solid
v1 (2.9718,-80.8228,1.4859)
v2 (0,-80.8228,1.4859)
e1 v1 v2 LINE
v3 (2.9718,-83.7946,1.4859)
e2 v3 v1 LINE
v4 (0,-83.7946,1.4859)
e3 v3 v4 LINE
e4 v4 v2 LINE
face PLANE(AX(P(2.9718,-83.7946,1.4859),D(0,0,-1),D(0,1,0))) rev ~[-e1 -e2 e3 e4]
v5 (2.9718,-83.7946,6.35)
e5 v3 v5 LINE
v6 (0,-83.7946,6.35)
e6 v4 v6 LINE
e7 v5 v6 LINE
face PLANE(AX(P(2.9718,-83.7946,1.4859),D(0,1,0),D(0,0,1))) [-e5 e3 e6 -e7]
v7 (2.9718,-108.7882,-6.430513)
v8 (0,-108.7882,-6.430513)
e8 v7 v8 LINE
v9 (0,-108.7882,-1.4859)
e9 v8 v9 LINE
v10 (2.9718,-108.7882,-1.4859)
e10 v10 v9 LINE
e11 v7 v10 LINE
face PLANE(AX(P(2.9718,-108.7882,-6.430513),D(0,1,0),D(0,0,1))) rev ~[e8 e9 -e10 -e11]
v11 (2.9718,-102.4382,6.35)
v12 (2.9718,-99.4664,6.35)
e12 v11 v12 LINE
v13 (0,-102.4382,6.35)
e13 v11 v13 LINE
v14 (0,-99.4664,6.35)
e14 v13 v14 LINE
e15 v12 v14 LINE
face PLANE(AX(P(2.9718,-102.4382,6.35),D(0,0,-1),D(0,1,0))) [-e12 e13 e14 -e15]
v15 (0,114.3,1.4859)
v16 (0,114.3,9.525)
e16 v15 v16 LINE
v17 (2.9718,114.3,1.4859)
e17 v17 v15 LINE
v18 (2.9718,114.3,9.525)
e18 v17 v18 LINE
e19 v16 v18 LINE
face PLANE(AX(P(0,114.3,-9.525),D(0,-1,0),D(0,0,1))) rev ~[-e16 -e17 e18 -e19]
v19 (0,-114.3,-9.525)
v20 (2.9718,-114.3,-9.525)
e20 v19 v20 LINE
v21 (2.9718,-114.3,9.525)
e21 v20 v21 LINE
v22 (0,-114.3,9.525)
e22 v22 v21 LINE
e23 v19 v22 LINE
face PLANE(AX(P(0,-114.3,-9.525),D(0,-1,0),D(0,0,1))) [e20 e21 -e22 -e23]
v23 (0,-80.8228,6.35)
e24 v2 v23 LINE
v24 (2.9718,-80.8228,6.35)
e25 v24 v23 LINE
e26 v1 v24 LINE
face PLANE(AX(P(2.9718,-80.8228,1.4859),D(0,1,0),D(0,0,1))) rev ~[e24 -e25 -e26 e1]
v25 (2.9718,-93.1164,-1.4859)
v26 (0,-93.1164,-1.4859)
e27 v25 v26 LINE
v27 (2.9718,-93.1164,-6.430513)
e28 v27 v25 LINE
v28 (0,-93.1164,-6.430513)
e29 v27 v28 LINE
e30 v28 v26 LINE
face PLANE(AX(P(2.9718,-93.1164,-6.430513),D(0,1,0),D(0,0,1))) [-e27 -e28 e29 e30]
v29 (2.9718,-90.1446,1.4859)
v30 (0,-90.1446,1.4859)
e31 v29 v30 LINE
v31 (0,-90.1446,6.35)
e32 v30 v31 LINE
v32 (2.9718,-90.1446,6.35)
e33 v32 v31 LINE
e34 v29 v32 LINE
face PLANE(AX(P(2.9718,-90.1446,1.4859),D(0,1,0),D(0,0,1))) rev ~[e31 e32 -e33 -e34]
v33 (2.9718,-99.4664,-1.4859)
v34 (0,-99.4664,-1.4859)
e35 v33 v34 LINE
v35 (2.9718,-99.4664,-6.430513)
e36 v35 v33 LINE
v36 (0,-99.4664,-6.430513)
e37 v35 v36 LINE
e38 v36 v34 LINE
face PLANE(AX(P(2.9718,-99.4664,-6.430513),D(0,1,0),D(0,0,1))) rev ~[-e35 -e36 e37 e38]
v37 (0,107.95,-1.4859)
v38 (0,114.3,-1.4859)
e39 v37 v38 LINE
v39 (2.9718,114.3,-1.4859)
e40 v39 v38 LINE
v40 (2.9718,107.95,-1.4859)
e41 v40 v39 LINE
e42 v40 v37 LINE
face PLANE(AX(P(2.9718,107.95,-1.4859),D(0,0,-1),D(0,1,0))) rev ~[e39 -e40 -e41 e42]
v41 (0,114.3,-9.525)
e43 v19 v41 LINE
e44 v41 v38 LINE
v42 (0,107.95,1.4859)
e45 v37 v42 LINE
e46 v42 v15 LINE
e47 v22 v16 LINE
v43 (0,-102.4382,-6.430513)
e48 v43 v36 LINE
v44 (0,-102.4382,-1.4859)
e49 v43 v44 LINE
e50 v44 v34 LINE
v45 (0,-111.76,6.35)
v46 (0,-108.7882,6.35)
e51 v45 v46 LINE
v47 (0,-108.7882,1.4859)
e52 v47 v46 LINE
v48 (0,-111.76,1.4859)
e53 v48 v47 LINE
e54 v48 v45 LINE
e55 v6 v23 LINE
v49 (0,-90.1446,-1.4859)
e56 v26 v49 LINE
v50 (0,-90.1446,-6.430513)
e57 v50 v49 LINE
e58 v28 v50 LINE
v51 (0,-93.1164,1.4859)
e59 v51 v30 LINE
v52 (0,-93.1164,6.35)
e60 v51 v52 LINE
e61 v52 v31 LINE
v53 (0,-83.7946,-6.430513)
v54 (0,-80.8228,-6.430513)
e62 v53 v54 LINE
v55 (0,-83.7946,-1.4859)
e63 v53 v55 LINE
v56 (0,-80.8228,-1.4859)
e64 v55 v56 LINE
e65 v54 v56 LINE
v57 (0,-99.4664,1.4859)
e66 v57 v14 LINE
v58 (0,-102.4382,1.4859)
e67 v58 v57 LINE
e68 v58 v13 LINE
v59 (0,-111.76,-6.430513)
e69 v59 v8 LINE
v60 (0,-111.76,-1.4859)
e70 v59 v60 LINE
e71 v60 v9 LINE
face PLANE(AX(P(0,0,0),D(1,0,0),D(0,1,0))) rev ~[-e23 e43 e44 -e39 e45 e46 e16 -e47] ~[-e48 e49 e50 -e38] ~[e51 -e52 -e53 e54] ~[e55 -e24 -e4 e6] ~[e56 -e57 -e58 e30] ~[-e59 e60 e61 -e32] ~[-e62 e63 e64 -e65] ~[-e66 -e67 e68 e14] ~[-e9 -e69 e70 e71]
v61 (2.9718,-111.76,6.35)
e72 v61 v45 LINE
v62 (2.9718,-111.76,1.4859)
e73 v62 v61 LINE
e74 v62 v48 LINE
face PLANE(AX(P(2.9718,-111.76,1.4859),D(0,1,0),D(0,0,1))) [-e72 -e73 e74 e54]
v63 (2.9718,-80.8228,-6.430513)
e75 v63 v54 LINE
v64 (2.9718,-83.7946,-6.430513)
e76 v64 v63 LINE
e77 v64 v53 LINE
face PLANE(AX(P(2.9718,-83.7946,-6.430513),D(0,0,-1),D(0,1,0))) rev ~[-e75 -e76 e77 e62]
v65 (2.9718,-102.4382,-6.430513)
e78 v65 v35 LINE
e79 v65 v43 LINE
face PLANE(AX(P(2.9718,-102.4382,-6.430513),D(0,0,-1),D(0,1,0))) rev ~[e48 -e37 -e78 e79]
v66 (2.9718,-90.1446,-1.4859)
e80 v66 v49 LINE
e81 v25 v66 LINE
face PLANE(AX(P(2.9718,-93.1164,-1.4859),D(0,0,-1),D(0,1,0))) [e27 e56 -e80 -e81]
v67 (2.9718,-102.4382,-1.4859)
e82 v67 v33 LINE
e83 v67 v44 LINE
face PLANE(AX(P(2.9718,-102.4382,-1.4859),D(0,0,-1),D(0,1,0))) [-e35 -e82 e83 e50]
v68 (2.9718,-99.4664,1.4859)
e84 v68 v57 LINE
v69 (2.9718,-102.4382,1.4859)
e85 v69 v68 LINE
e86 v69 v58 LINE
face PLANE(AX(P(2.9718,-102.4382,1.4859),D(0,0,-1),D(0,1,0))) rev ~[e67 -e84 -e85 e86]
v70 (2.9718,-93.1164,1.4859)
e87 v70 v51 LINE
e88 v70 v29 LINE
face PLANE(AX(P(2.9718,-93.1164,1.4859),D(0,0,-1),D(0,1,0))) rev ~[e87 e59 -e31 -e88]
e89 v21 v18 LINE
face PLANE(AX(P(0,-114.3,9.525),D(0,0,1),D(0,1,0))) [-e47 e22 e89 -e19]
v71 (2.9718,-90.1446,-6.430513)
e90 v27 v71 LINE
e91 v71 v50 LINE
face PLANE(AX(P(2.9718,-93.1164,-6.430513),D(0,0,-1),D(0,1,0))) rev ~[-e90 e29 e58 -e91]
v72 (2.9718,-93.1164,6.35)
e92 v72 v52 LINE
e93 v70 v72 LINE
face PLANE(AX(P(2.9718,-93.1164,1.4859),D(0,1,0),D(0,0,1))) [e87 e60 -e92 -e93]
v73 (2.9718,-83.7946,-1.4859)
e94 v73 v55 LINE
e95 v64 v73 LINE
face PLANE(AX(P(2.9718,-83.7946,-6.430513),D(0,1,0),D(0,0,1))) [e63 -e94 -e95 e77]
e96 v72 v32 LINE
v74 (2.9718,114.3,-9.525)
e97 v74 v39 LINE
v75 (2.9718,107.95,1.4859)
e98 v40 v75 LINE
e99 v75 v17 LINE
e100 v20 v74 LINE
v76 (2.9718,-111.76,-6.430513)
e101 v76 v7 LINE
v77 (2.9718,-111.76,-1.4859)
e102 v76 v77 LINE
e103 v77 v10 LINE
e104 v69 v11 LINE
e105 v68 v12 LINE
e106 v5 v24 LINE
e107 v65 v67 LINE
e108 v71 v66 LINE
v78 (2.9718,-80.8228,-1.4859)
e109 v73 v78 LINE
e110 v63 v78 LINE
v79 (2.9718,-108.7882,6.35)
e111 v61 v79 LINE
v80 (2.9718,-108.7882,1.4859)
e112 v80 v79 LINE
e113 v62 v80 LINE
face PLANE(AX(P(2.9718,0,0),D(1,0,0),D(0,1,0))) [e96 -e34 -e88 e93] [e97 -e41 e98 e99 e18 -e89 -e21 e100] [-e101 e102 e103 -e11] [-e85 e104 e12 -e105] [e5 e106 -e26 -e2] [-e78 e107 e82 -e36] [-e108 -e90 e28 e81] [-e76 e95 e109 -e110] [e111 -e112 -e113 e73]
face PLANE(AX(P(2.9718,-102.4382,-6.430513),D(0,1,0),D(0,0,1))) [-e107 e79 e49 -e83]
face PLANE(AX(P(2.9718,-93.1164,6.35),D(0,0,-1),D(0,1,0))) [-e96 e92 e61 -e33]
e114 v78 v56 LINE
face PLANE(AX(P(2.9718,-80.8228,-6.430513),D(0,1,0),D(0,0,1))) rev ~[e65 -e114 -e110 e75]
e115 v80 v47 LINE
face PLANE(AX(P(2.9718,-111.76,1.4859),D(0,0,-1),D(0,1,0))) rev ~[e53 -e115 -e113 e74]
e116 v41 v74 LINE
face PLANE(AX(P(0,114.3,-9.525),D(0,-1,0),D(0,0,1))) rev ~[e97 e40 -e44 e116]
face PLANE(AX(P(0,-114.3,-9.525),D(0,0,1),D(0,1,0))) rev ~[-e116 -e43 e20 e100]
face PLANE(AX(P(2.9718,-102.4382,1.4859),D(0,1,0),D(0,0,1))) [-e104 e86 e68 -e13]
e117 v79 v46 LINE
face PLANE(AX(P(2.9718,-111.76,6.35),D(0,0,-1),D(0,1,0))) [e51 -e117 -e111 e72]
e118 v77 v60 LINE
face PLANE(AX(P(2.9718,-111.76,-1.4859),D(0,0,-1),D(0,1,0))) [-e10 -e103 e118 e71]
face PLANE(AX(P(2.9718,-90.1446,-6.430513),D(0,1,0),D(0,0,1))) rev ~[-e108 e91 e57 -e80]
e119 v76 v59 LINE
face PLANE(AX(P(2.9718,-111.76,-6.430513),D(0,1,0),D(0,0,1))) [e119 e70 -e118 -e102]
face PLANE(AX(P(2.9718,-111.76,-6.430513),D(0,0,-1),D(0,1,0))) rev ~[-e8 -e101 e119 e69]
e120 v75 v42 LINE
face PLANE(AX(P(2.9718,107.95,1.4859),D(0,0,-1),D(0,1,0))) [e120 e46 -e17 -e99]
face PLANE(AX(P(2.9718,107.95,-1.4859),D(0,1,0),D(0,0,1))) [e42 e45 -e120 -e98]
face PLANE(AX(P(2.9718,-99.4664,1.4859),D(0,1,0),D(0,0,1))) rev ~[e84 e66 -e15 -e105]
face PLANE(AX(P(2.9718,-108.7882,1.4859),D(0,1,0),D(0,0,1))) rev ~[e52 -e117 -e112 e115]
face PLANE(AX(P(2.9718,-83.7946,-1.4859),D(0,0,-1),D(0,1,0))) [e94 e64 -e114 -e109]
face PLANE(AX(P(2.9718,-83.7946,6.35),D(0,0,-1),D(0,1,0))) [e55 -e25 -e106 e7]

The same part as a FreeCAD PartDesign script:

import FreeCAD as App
import Part
import Sketcher
Q = App.Units.Quantity


def add_polygon(sketch, points):
    """Adds a closed chain of lines whose ends are joined by coincident constraints."""
    first, n = sketch.GeometryCount, len(points)
    for a, b in zip(points, points[1:] + points[:1]):
        sketch.addGeometry(Part.LineSegment(App.Vector(*a, 0), App.Vector(*b, 0)), False)
    for i in range(n):
        sketch.addConstraint(Sketcher.Constraint("Coincident", first + i, 2, first + (i + 1) % n, 1))

doc = App.newDocument("Part")
body = doc.addObject("PartDesign::Body", "Body")

sketch1 = body.newObject("Sketcher::SketchObject", "Sketch")
sketch1.AttachmentSupport = (doc.getObject("YZ_Plane"), [""])
sketch1.MapMode = "FlatFace"
add_polygon(sketch1, [(-114, 10), (-114, -10), (114, -10), (114, 10)])
sketch1.addConstraint([
    Sketcher.Constraint("Vertical", 0),
    Sketcher.Constraint("Horizontal", 1),
    Sketcher.Constraint("Vertical", 2),
    Sketcher.Constraint("Horizontal", 3),
    Sketcher.Constraint("Symmetric", 0, 2, 2, 2, -1, 1),
    Sketcher.Constraint("DistanceX", 1, 1, 1, 2, Q("9 in")),
    Sketcher.Constraint("DistanceY", 0, 2, 0, 1, Q("0.75 in")),
])
pad1 = body.newObject("PartDesign::Pad", "Pad")
pad1.Profile = sketch1
pad1.Length = Q("0.117 in")

sketch2 = body.newObject("Sketcher::SketchObject", "Sketch001")
sketch2.AttachmentSupport = (doc.getObject("YZ_Plane"), [""])
sketch2.MapMode = "FlatFace"
sketch2.AttachmentOffset = App.Placement(App.Vector(0, 0, 0.117 * 25.4), App.Rotation())
add_polygon(sketch2, [(108, 1.5), (108, -1.5), (114.3, -1.5), (114.3, 1.5)])
sketch2.addConstraint([
    Sketcher.Constraint("Vertical", 0),
    Sketcher.Constraint("Horizontal", 1),
    Sketcher.Constraint("Vertical", 2),
    Sketcher.Constraint("Horizontal", 3),
    Sketcher.Constraint("DistanceX", 1, 1, 1, 2, Q("0.25 in")),
    Sketcher.Constraint("DistanceX", -1, 1, 1, 2, Q("4.5 in")),
    Sketcher.Constraint("DistanceY", 0, 2, 0, 1, Q("0.117 in")),
    Sketcher.Constraint("DistanceY", 0, 2, -1, 1, Q("0.0585 in")),
])
pocket1 = body.newObject("PartDesign::Pocket", "Pocket")
pocket1.Profile = sketch2
pocket1.Type = "ThroughAll"

sketch3 = body.newObject("Sketcher::SketchObject", "Sketch002")
sketch3.AttachmentSupport = (doc.getObject("YZ_Plane"), [""])
sketch3.MapMode = "FlatFace"
sketch3.AttachmentOffset = App.Placement(App.Vector(0, 0, 0.117 * 25.4), App.Rotation())
add_polygon(sketch3, [(-102.4, 6.3), (-102.4, 1.5), (-99.5, 1.5), (-99.5, 6.3)])
add_polygon(sketch3, [(-111.8, 6.3), (-111.8, 1.5), (-108.8, 1.5), (-108.8, 6.3)])
add_polygon(sketch3, [(-111.8, -1.5), (-111.8, -6.4), (-108.8, -6.4), (-108.8, -1.5)])
add_polygon(sketch3, [(-102.4, -1.5), (-102.4, -6.4), (-99.5, -6.4), (-99.5, -1.5)])
add_polygon(sketch3, [(-93.1, 6.3), (-93.1, 1.5), (-90.1, 1.5), (-90.1, 6.3)])
add_polygon(sketch3, [(-93.1, -1.5), (-93.1, -6.4), (-90.1, -6.4), (-90.1, -1.5)])
add_polygon(sketch3, [(-83.8, 6.3), (-83.8, 1.5), (-80.8, 1.5), (-80.8, 6.3)])
add_polygon(sketch3, [(-83.8, -1.5), (-83.8, -6.4), (-80.8, -6.4), (-80.8, -1.5)])
sketch3.addConstraint([
    Sketcher.Constraint("Vertical", 0),
    Sketcher.Constraint("Horizontal", 1),
    Sketcher.Constraint("Vertical", 2),
    Sketcher.Constraint("Horizontal", 3),
    Sketcher.Constraint("Vertical", 4),
    Sketcher.Constraint("Horizontal", 5),
    Sketcher.Constraint("Vertical", 6),
    Sketcher.Constraint("Horizontal", 7),
    Sketcher.Constraint("Vertical", 8),
    Sketcher.Constraint("Horizontal", 9),
    Sketcher.Constraint("Vertical", 10),
    Sketcher.Constraint("Horizontal", 11),
    Sketcher.Constraint("Vertical", 12),
    Sketcher.Constraint("Horizontal", 13),
    Sketcher.Constraint("Vertical", 14),
    Sketcher.Constraint("Horizontal", 15),
    Sketcher.Constraint("Vertical", 16),
    Sketcher.Constraint("Horizontal", 17),
    Sketcher.Constraint("Vertical", 18),
    Sketcher.Constraint("Horizontal", 19),
    Sketcher.Constraint("Vertical", 20),
    Sketcher.Constraint("Horizontal", 21),
    Sketcher.Constraint("Vertical", 22),
    Sketcher.Constraint("Horizontal", 23),
    Sketcher.Constraint("Vertical", 24),
    Sketcher.Constraint("Horizontal", 25),
    Sketcher.Constraint("Vertical", 26),
    Sketcher.Constraint("Horizontal", 27),
    Sketcher.Constraint("Vertical", 28),
    Sketcher.Constraint("Horizontal", 29),
    Sketcher.Constraint("Vertical", 30),
    Sketcher.Constraint("Horizontal", 31),
    Sketcher.Constraint("Symmetric", 5, 2, 10, 2, -1),
    Sketcher.Constraint("Symmetric", 1, 2, 14, 2, -1),
    Sketcher.Constraint("Symmetric", 17, 2, 22, 2, -1),
    Sketcher.Constraint("Symmetric", 25, 2, 30, 2, -1),
    Sketcher.Constraint("Horizontal", 1, 2, 4, 2),
    Sketcher.Constraint("Horizontal", 3, 2, 6, 2),
    Sketcher.Constraint("Horizontal", 9, 2, 12, 2),
    Sketcher.Constraint("Horizontal", 5, 2, 16, 2),
    Sketcher.Constraint("Horizontal", 7, 2, 18, 2),
    Sketcher.Constraint("Horizontal", 13, 2, 20, 2),
    Sketcher.Constraint("Horizontal", 17, 2, 24, 2),
    Sketcher.Constraint("Horizontal", 19, 2, 26, 2),
    Sketcher.Constraint("Horizontal", 21, 2, 28, 2),
    Sketcher.Constraint("Vertical", 7, 2, 8, 2),
    Sketcher.Constraint("Vertical", 3, 2, 12, 2),
    Sketcher.Constraint("Vertical", 19, 2, 20, 2),
    Sketcher.Constraint("Vertical", 27, 2, 28, 2),
    Sketcher.Constraint("Equal", 3, 5),
    Sketcher.Constraint("Equal", 15, 17),
    Sketcher.Constraint("Equal", 23, 25),
    Sketcher.Constraint("DistanceX", 4, 2, -1, 1, Q("4.4 in")),
    Sketcher.Constraint("DistanceX", 1, 1, 1, 2, Q("0.117 in")),
    Sketcher.Constraint("DistanceY", -1, 1, 2, 2, Q("0.25 in")),
    Sketcher.Constraint("DistanceX", 5, 2, 0, 2, Q("0.25 in")),
    Sketcher.Constraint("DistanceX", 1, 2, 16, 2, Q("0.25 in")),
    Sketcher.Constraint("DistanceX", 17, 2, 24, 2, Q("0.25 in")),
    Sketcher.Constraint("DistanceY", 0, 2, 0, 1, Q("0.1915 in")),
    Sketcher.Constraint("DistanceY", 8, 2, 8, 1, Q("4.944613 mm")),
])
pocket2 = body.newObject("PartDesign::Pocket", "Pocket001")
pocket2.Profile = sketch3
pocket2.Type = "ThroughAll"

doc.recompute()
